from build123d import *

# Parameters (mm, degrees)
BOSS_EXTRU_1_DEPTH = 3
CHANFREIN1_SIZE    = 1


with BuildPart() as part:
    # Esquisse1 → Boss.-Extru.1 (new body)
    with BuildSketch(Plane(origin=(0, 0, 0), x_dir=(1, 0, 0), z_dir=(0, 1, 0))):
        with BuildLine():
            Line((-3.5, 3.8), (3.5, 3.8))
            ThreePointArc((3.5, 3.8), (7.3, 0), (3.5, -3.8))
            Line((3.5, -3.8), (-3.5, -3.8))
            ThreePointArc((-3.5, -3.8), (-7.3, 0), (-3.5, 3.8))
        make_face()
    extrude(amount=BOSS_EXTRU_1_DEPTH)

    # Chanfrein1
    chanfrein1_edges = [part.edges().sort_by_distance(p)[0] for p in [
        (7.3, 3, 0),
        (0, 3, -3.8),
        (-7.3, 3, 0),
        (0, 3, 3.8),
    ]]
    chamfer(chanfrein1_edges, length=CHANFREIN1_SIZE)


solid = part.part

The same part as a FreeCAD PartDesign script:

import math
import FreeCAD as App
import Part
import Sketcher

V = App.Vector
Q = App.Units.Quantity


def edges_at(feature, points):
    """Names of the edges that pass closest to the given points."""
    edges = feature.Shape.Edges
    near = lambda p: min(range(len(edges)), key=lambda i: edges[i].distToShape(Part.Vertex(*p))[0])
    return sorted({f"Edge{near(p) + 1}" for p in points})

doc = App.newDocument("Part")
body = doc.addObject("PartDesign::Body", "Body")

# Sketch on XZ plane
sketch1 = doc.addObject("Sketcher::SketchObject", "Sketch")
body.addObject(sketch1)
sketch1.AttachmentSupport = (doc.XZ_Plane, [""])
sketch1.MapMode = "FlatFace"
sketch1.addGeometry([
    Part.LineSegment(V(3.5, -3.8, 0), V(-3.5, -3.8, 0)),
    Part.ArcOfCircle(Part.Circle(V(-3.5, 0, 0), V(0, 0, 1), 3.8), math.radians(90), math.radians(270)),
    Part.LineSegment(V(-3.5, 3.8, 0), V(3.5, 3.8, 0)),
    Part.ArcOfCircle(Part.Circle(V(3.5, 0, 0), V(0, 0, 1), 3.8), math.radians(-90), math.radians(90)),
], False)
sketch1.addConstraint([
    Sketcher.Constraint("Tangent", 0, 2, 1, 2),
    Sketcher.Constraint("Tangent", 1, 1, 2, 1),
    Sketcher.Constraint("Tangent", 2, 2, 3, 2),
    Sketcher.Constraint("Tangent", 3, 1, 0, 1),
    Sketcher.Constraint("Horizontal", 0),
    Sketcher.Constraint("Horizontal", 2),
    Sketcher.Constraint("Symmetric", 1, 3, 3, 3, -1, 1),
    Sketcher.Constraint("Radius", 1, Q("3.8 mm")),
    Sketcher.Constraint("DistanceX", 0, 2, 0, 1, Q("7 mm")),
])
pad1 = doc.addObject("PartDesign::Pad", "Pad")
body.addObject(pad1)
pad1.Profile = sketch1
pad1.Length = 3
pad1.Reversed = True
doc.recompute()

chamfer = doc.addObject("PartDesign::Chamfer", "Chamfer")
body.addObject(chamfer)
chamfer.Base = (pad1, edges_at(pad1, [
    (7.3, 3, 0),
    (0, 3, -3.8),
    (-7.3, 3, 0),
    (0, 3, 3.8),
]))
chamfer.Size = 1

doc.recompute()
